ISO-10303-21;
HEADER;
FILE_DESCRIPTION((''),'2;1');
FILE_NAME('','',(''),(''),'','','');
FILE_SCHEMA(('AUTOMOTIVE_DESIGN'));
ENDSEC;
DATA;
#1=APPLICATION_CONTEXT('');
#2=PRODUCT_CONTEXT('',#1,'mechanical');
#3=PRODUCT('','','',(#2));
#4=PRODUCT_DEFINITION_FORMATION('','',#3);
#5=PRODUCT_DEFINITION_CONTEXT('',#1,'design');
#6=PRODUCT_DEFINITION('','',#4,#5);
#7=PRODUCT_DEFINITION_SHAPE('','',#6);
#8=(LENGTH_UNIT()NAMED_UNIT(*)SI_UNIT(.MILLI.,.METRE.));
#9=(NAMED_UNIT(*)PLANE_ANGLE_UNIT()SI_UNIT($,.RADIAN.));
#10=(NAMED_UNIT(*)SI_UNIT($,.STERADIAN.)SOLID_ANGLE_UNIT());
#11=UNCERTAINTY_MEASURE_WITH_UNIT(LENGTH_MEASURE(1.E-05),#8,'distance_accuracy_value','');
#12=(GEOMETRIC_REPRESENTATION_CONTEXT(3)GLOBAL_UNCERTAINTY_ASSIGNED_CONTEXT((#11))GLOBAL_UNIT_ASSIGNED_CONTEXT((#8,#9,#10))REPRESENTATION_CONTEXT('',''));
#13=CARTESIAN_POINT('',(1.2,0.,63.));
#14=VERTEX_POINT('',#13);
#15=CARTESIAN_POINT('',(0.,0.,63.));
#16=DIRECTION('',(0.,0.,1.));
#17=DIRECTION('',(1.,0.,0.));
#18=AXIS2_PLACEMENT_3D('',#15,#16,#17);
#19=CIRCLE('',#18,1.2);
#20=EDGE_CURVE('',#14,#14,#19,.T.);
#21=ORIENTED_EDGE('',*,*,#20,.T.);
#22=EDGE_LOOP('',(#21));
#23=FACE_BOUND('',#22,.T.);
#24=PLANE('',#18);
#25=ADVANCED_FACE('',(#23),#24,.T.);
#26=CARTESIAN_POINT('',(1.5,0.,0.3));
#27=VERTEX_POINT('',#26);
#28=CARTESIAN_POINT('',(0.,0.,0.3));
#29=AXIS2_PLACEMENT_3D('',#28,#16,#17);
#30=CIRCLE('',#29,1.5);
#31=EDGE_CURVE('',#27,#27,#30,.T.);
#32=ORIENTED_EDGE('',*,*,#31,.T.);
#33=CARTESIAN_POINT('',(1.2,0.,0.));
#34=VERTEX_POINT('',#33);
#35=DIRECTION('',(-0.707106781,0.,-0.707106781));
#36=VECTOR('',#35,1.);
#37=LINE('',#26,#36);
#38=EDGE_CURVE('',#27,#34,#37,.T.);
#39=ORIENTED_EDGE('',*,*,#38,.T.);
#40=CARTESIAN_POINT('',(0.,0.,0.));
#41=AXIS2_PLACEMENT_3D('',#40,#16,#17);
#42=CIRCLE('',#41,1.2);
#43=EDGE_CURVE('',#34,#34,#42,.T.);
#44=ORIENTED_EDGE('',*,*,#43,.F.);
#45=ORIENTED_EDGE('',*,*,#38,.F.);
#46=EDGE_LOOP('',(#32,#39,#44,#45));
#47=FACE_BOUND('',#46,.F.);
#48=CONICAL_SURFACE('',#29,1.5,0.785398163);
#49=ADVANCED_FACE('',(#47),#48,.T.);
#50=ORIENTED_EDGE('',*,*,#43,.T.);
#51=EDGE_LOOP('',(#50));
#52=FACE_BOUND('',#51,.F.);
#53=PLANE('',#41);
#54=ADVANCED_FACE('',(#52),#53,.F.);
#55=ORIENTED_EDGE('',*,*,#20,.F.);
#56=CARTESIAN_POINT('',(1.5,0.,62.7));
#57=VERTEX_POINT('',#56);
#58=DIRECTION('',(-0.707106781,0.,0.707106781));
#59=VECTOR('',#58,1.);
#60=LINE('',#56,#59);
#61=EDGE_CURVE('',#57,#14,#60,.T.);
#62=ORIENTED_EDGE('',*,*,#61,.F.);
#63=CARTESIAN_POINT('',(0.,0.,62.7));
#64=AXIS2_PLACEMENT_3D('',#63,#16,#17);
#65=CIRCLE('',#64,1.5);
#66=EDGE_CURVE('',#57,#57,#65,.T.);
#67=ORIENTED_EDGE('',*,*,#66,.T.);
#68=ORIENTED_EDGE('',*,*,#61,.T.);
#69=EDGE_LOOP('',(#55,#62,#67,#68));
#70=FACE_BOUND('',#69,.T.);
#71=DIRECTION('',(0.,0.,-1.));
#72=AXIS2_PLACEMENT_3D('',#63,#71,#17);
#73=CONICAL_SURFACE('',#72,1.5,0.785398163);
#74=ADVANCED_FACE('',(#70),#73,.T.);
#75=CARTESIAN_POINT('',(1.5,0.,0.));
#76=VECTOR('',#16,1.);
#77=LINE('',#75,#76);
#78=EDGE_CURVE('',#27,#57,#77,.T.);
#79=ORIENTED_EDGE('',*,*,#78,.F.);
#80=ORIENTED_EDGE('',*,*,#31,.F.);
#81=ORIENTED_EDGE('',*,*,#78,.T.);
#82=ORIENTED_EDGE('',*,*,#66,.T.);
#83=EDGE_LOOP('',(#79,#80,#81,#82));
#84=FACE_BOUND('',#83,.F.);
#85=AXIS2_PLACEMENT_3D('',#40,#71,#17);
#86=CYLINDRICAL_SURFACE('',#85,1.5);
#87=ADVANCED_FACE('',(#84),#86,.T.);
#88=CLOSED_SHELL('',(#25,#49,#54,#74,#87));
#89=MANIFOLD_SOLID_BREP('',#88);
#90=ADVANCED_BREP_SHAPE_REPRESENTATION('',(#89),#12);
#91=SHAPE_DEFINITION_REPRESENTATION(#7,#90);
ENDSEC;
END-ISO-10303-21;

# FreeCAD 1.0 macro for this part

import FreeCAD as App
import Part
import Sketcher


def edges_at(feature, points):
    """Names of the edges that pass closest to the given points."""
    edges = feature.Shape.Edges
    near = lambda p: min(range(len(edges)), key=lambda i: edges[i].distToShape(Part.Vertex(*p))[0])
    return sorted({f"Edge{near(p) + 1}" for p in points})

doc = App.newDocument("Part")
params = doc.addObject("Spreadsheet::Sheet", "Params")
for row, (alias, value) in enumerate([
    ("sketch1_diameter", "3 mm"),
    ("pad1_length", "63 mm"),
    ("chamfer_size", "0.3 mm"),
], start=1):
    params.set(f"A{row}", alias)
    params.set(f"B{row}", "=" + value)
    params.setAlias(f"B{row}", alias)

body = doc.addObject("PartDesign::Body", "Body")

sketch1 = body.newObject("Sketcher::SketchObject", "Sketch")
sketch1.AttachmentSupport = (doc.getObject("XY_Plane"), [""])
sketch1.MapMode = "FlatFace"
sketch1.addGeometry(Part.Circle(App.Vector(0, 0, 0), App.Vector(0, 0, 1), 1.5), False)
sketch1.addConstraint([
    Sketcher.Constraint("Coincident", 0, 3, -1, 1),
    Sketcher.Constraint("Diameter", 0, 3.0),
])
sketch1.setExpression("Constraints[1]", "Params.sketch1_diameter")
pad1 = body.newObject("PartDesign::Pad", "Pad")
pad1.Profile = sketch1
pad1.setExpression("Length", "Params.pad1_length")
doc.recompute()

chamfer = body.newObject("PartDesign::Chamfer", "Chamfer")
chamfer.Base = (pad1, edges_at(pad1, [(-1.5, 0, 63), (-1.5, 0, 0)]))
chamfer.setExpression("Size", "Params.chamfer_size")

doc.recompute()
